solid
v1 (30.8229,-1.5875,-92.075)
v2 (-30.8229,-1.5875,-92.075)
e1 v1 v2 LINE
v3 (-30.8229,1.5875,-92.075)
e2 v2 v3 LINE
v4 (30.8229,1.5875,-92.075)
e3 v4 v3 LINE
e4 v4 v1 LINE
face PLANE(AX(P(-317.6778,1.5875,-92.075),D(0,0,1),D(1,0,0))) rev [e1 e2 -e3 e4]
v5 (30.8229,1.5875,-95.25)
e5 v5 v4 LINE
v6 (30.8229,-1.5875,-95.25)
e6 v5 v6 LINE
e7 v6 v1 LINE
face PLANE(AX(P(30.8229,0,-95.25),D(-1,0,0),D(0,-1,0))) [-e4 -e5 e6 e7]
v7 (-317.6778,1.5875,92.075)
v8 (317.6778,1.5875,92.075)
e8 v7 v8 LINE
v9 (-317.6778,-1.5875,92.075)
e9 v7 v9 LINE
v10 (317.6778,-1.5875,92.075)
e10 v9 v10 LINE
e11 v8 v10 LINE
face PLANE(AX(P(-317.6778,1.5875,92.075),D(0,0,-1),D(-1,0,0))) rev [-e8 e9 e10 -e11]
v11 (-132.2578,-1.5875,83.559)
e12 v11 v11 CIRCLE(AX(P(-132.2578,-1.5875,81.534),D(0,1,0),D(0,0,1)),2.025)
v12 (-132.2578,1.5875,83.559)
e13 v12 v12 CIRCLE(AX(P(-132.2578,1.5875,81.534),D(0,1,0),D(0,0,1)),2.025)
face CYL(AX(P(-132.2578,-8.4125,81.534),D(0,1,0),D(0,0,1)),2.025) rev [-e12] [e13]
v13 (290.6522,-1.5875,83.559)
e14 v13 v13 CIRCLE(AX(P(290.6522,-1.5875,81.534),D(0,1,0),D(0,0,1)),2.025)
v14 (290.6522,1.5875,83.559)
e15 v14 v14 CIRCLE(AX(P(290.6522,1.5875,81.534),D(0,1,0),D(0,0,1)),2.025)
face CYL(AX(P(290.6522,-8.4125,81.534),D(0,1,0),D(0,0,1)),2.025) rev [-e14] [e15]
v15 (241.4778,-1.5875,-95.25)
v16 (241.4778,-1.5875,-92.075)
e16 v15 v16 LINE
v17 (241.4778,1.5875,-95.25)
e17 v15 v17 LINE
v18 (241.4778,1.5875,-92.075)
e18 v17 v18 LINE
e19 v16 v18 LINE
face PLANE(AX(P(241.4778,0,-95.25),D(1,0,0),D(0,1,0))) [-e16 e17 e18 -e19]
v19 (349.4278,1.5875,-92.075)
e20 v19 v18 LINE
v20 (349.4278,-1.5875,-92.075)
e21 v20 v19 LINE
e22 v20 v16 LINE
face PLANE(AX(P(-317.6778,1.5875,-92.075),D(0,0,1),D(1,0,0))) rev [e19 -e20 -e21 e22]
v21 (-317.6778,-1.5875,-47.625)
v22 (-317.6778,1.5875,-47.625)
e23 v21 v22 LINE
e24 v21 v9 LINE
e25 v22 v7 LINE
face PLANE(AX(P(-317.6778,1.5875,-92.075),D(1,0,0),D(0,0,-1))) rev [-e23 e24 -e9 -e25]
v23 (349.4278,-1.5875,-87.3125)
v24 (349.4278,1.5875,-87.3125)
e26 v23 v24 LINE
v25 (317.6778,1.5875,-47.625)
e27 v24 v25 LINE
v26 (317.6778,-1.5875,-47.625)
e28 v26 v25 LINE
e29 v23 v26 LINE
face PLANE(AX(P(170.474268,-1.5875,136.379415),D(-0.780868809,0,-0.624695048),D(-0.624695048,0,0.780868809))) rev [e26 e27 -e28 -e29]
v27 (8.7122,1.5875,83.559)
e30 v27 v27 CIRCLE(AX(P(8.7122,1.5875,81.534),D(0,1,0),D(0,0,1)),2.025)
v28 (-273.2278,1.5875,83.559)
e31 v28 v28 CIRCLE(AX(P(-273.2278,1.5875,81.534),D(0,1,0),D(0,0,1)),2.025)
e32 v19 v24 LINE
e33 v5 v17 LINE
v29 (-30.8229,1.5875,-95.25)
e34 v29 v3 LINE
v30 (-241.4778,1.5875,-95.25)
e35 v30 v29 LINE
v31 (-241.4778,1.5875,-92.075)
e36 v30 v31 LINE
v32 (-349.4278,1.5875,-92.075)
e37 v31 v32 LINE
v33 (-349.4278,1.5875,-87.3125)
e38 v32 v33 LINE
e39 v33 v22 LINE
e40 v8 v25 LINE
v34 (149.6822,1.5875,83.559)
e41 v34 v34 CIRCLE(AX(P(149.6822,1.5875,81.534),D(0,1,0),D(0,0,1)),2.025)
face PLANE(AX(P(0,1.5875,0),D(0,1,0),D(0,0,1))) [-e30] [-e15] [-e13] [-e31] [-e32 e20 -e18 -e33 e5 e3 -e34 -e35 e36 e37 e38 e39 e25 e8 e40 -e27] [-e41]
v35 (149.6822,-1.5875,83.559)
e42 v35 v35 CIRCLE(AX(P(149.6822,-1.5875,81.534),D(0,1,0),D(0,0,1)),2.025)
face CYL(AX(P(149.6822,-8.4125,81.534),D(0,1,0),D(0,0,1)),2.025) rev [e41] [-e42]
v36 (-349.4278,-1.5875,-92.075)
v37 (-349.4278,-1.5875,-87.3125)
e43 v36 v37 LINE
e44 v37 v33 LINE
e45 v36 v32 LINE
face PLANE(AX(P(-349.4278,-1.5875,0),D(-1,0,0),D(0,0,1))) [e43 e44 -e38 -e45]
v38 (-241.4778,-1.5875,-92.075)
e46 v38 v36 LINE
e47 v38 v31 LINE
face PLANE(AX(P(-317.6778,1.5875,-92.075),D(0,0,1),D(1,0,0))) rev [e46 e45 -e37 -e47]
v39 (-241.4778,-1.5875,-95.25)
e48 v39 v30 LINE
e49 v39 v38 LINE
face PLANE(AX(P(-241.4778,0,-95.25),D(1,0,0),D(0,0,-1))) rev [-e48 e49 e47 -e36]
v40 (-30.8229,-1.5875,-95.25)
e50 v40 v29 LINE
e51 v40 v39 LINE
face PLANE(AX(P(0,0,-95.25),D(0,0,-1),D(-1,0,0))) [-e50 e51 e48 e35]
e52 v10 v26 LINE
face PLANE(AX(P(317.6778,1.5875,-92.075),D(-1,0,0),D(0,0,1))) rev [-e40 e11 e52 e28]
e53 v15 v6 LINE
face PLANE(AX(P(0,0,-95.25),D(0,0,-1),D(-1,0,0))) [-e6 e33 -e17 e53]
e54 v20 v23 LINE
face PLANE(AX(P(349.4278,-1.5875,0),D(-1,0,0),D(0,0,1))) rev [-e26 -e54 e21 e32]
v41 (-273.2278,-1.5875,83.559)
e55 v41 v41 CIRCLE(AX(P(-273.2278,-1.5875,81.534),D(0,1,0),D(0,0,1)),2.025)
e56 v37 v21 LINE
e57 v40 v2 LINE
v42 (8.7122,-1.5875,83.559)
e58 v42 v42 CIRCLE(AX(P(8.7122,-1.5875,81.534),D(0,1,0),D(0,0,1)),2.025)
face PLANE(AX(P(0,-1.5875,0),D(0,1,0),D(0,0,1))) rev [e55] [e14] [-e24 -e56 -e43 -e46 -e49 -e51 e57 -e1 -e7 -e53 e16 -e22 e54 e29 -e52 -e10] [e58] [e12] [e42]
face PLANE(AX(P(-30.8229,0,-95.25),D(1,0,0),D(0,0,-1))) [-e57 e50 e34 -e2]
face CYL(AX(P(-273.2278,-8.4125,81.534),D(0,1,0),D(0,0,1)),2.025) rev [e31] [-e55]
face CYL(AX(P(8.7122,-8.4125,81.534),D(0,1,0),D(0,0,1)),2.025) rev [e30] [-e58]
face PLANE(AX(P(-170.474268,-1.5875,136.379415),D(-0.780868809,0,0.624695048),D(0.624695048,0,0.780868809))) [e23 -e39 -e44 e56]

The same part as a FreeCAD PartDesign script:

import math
import FreeCAD as App
import Part
import Sketcher
Q = App.Units.Quantity


def add_polygon(sketch, points):
    """Adds a closed chain of lines whose ends are joined by coincident constraints."""
    first, n = sketch.GeometryCount, len(points)
    for a, b in zip(points, points[1:] + points[:1]):
        sketch.addGeometry(Part.LineSegment(App.Vector(*a, 0), App.Vector(*b, 0)), False)
    for i in range(n):
        sketch.addConstraint(Sketcher.Constraint("Coincident", first + i, 2, first + (i + 1) % n, 1))

doc = App.newDocument("Part")
body = doc.addObject("PartDesign::Body", "Body")

# Sketch on XZ plane
sketch1 = body.newObject("Sketcher::SketchObject", "Sketch")
sketch1.AttachmentSupport = (doc.getObject("XZ_Plane"), [""])
sketch1.MapMode = "FlatFace"
add_polygon(sketch1, [(-318, -92), (-318, 92), (318, 92), (318, -92)])  # lines 0-3
sketch1.addConstraint([
    Sketcher.Constraint("Vertical", 0),
    Sketcher.Constraint("Horizontal", 1),
    Sketcher.Constraint("Vertical", 2),
    Sketcher.Constraint("Horizontal", 3),
    Sketcher.Constraint("Symmetric", 0, 2, 2, 2, -1, 1),
    Sketcher.Constraint("DistanceY", 0, 1, 0, 2, Q("7.25 in")),
    Sketcher.Constraint("DistanceX", 1, 1, 1, 2, Q("25.014 in")),
])
pad1 = body.newObject("PartDesign::Pad", "Pad")
pad1.Profile = sketch1
pad1.Length = Q("0.125 in")
pad1.Midplane = True

# Sketch on XY plane
sketch2 = body.newObject("Sketcher::SketchObject", "Sketch001")
sketch2.AttachmentSupport = (doc.getObject("XY_Plane"), [""])
sketch2.MapMode = "FlatFace"
sketch2.AttachmentOffset = App.Placement(App.Vector(0, 0, -3.625 * 25.4), App.Rotation())
add_polygon(sketch2, [(241.5, 1.6), (241.5, -1.6), (30.8, -1.6), (30.8, 1.6)])  # lines 0-3
add_polygon(sketch2, [(-30.8, 1.6), (-30.8, -1.6), (-241.5, -1.6), (-241.5, 1.6)])  # lines 4-7
sketch2.addConstraint([
    Sketcher.Constraint("Vertical", 0),
    Sketcher.Constraint("Horizontal", 1),
    Sketcher.Constraint("Vertical", 2),
    Sketcher.Constraint("Horizontal", 3),
    Sketcher.Constraint("Vertical", 4),
    Sketcher.Constraint("Horizontal", 5),
    Sketcher.Constraint("Vertical", 6),
    Sketcher.Constraint("Horizontal", 7),
    Sketcher.Constraint("Symmetric", 2, 2, 4, 2, -1, 1),
    Sketcher.Constraint("Symmetric", 0, 2, 6, 2, -1, 1),
    Sketcher.Constraint("Horizontal", 1, 2, 4, 2),
    Sketcher.Constraint("DistanceY", 0, 2, 0, 1, Q("0.125 in")),
    Sketcher.Constraint("DistanceX", 1, 2, 1, 1, Q("8.2935 in")),
    Sketcher.Constraint("DistanceX", -1, 1, 0, 2, Q("9.507 in")),
])
pad2 = body.newObject("PartDesign::Pad", "Pad001")
pad2.Profile = sketch2
pad2.Length = Q("0.125 in")
pad2.Reversed = True

# Sketch on XZ plane
sketch3 = body.newObject("Sketcher::SketchObject", "Sketch002")
sketch3.AttachmentSupport = (doc.getObject("XZ_Plane"), [""])
sketch3.MapMode = "FlatFace"
sketch3.AttachmentOffset = App.Placement(App.Vector(0, 0, -0.0625 * 25.4), App.Rotation())
add_polygon(sketch3, [(-317.7, -47.6), (-317.7, -92.1), (-349.4, -92.1), (-349.4, -87.3)])  # lines 0-3
sketch3.addConstraint([
    Sketcher.Constraint("Vertical", 0),
    Sketcher.Constraint("Horizontal", 1),
    Sketcher.Constraint("Vertical", 2),
    Sketcher.Constraint("DistanceX", 1, 2, 1, 1, Q("1.25 in")),
    Sketcher.Constraint("DistanceY", 0, 2, 0, 1, Q("1.75 in")),
    Sketcher.Constraint("DistanceY", 2, 1, 2, 2, Q("0.1875 in")),
    Sketcher.Constraint("DistanceX", 0, 2, -1, 1, Q("12.507 in")),
    Sketcher.Constraint("DistanceY", 0, 2, -1, 1, Q("3.625 in")),
])
pad3 = body.newObject("PartDesign::Pad", "Pad002")
pad3.Profile = sketch3
pad3.Length = Q("0.125 in")
doc.recompute()

mirrored = body.newObject("PartDesign::Mirrored", "Mirrored")
mirrored.Originals = [pad3]
mirrored.MirrorPlane = (doc.getObject("YZ_Plane"), [""])
body.Tip = mirrored

# Sketch on XZ plane
sketch4 = body.newObject("Sketcher::SketchObject", "Sketch003")
sketch4.AttachmentSupport = (doc.getObject("XZ_Plane"), [""])
sketch4.MapMode = "FlatFace"
sketch4.AttachmentOffset = App.Placement(App.Vector(0, 0, -0.0625 * 25.4), App.Rotation())
sketch4.addGeometry([
    Part.ArcOfCircle(Part.Circle(App.Vector(-273.2, 81.5, 0), App.Vector(0, 0, 1), 2), math.radians(90), math.radians(180)),
    Part.ArcOfCircle(Part.Circle(App.Vector(-273.2, 81.5, 0), App.Vector(0, 0, 1), 2), math.radians(0), math.radians(90)),
    Part.ArcOfCircle(Part.Circle(App.Vector(-273.2, 81.5, 0), App.Vector(0, 0, 1), 2), math.radians(180), math.radians(360)),
], False)
sketch4.addConstraint([
    Sketcher.Constraint("Tangent", 0, 1, 1, 2),
    Sketcher.Constraint("Tangent", 1, 1, 2, 2),
    Sketcher.Constraint("Tangent", 2, 1, 0, 2),
    Sketcher.Constraint("Horizontal", 2, 3, 1, 1),
    Sketcher.Constraint("Horizontal", 1, 1, 2, 1),
    Sketcher.Constraint("Vertical", 2, 3, 0, 1),
    Sketcher.Constraint("DistanceY", -1, 1, 0, 3, Q("3.21 in")),
    Sketcher.Constraint("Radius", 0, Q("2.025 mm")),
    Sketcher.Constraint("DistanceX", 0, 3, -1, 1, Q("10.757 in")),
])
pocket1 = body.newObject("PartDesign::Pocket", "Pocket")
pocket1.Profile = sketch4
pocket1.Length = 10
pocket1.Reversed = True
doc.recompute()

linearpattern = body.newObject("PartDesign::LinearPattern", "LinearPattern")
linearpattern.Originals = [pocket1]
linearpattern.Direction = (doc.getObject("X_Axis"), [""])
linearpattern.Mode = "offset"
linearpattern.Offset = Q("5.55 in")
linearpattern.Occurrences = 5
body.Tip = linearpattern

doc.recompute()
